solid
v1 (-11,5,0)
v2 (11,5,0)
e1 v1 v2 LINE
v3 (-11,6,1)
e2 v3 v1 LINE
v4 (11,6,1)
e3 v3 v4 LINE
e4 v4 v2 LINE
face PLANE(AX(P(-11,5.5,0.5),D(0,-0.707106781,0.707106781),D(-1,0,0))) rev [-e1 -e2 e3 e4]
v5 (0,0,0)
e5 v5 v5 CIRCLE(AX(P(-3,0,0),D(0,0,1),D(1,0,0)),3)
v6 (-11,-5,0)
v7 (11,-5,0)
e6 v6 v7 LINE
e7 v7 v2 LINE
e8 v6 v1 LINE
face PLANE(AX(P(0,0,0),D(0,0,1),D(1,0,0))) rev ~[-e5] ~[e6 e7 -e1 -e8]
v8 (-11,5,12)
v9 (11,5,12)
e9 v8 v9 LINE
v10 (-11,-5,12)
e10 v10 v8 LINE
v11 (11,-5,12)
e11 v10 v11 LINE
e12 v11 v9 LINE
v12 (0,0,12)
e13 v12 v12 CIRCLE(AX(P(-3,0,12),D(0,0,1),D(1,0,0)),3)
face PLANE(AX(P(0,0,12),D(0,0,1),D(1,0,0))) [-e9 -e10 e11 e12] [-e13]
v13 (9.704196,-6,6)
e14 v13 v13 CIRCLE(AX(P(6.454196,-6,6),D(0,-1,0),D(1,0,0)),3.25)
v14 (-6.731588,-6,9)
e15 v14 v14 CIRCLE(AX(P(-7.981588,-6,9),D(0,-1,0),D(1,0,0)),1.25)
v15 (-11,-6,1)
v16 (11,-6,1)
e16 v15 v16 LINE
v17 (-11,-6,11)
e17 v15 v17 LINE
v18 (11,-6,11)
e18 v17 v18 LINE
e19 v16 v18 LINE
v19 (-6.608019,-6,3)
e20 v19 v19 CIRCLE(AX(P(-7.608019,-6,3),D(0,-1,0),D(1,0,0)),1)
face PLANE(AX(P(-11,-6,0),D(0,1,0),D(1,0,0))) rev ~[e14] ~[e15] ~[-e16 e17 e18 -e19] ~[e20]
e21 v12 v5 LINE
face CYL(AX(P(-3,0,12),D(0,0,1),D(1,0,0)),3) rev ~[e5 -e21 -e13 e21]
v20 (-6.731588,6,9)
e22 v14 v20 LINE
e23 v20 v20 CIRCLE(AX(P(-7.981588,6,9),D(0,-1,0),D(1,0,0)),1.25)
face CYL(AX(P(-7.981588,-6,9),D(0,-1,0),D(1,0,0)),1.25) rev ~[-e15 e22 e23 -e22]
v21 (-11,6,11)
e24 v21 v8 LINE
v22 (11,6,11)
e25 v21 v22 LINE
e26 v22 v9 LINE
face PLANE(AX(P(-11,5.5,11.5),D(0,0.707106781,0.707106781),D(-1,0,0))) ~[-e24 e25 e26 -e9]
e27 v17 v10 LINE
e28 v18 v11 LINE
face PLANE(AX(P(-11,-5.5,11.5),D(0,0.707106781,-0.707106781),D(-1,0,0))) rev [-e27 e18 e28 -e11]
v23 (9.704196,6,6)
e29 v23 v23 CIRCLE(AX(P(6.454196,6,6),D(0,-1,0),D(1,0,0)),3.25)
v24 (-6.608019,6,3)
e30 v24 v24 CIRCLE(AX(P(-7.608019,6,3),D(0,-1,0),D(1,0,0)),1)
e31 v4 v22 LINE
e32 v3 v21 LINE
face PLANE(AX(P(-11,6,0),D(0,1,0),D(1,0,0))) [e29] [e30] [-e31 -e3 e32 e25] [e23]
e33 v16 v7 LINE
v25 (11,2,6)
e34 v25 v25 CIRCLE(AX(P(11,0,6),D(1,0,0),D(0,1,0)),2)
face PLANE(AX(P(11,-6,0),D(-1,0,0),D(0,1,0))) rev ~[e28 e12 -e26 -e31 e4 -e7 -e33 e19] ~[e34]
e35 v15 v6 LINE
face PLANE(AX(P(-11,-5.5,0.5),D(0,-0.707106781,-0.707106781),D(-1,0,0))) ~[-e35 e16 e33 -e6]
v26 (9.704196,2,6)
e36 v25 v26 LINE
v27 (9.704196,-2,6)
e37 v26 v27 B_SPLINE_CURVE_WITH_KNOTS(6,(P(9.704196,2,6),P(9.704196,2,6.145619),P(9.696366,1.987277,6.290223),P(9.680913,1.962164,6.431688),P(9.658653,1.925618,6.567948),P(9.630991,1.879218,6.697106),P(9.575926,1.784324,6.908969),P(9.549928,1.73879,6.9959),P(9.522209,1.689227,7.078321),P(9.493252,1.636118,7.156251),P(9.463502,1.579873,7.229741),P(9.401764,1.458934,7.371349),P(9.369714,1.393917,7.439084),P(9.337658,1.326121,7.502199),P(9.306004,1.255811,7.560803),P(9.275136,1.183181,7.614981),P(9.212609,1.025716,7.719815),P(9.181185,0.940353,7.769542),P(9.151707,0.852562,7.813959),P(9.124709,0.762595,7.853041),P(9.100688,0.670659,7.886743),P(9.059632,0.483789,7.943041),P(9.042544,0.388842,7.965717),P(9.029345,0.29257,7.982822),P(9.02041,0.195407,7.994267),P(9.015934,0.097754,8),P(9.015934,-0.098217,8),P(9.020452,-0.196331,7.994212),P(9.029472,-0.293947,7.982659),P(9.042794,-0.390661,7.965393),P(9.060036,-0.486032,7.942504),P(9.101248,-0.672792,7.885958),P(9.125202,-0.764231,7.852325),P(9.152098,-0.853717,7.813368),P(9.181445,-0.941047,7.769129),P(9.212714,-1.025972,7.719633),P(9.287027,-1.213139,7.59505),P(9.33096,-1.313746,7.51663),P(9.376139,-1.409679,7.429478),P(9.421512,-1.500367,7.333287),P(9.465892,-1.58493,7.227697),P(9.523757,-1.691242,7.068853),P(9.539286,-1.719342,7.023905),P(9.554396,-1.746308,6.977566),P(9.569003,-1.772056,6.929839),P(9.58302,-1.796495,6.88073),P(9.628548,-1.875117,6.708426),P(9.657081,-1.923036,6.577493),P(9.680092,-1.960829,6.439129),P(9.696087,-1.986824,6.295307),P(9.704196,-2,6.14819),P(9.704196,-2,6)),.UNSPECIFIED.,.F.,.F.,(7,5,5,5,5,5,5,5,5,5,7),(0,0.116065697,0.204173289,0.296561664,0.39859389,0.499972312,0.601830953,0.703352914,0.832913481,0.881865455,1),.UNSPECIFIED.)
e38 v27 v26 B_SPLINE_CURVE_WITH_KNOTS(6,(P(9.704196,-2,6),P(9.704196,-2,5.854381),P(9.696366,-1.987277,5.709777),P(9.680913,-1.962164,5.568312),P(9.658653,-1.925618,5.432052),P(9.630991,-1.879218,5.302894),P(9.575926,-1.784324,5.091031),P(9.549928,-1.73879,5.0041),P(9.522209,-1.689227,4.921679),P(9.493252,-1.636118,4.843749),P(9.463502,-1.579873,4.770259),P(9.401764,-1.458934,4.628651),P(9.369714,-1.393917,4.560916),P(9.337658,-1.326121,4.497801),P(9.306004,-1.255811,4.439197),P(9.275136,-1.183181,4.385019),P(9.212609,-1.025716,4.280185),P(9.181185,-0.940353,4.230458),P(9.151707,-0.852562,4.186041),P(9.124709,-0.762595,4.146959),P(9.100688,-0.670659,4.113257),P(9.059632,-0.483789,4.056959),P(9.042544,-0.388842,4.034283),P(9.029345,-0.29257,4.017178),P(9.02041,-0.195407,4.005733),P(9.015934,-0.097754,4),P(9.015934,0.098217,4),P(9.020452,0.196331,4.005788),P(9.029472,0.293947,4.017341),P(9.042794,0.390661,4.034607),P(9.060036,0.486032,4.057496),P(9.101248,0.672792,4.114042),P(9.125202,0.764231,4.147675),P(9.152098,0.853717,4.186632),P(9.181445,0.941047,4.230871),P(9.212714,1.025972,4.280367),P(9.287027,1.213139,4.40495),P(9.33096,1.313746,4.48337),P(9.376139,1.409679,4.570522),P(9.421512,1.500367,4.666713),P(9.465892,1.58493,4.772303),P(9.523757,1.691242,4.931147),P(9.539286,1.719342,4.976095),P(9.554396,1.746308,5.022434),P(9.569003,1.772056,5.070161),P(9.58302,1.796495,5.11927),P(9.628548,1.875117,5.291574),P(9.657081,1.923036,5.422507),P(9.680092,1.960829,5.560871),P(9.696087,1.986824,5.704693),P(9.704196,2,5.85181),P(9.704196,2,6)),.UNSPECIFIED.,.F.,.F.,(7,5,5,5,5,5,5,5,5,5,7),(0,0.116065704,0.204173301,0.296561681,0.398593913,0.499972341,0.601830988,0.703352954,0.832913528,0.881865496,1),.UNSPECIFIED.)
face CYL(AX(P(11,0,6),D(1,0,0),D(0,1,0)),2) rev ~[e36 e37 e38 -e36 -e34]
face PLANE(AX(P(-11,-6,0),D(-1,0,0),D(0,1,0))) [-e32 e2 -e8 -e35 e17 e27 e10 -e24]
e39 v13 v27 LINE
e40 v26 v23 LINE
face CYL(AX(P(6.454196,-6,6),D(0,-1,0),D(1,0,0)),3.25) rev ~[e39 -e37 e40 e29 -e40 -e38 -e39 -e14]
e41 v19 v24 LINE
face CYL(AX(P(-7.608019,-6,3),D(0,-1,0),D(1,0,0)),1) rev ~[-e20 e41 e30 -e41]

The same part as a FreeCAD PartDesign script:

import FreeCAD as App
import Part
import Sketcher
from FreeCAD import Vector
Q = App.Units.Quantity


def edges_at(feature, points):
    """Names of the edges that pass closest to the given points."""
    edges = feature.Shape.Edges
    near = lambda p: min(range(len(edges)), key=lambda i: edges[i].distToShape(Part.Vertex(*p))[0])
    return sorted({f"Edge{near(p) + 1}" for p in points})


def add_polygon(sketch, points):
    """Adds a closed chain of lines whose ends are joined by coincident constraints."""
    first, n = sketch.GeometryCount, len(points)
    for a, b in zip(points, points[1:] + points[:1]):
        sketch.addGeometry(Part.LineSegment(App.Vector(*a, 0), App.Vector(*b, 0)), False)
    for i in range(n):
        sketch.addConstraint(Sketcher.Constraint("Coincident", first + i, 2, first + (i + 1) % n, 1))

doc = App.newDocument("Part")
body = doc.addObject("PartDesign::Body", "Body")

# Sketch on XY plane
sketch1 = doc.addObject("Sketcher::SketchObject", "Sketch")
body.addObject(sketch1)
sketch1.AttachmentSupport = (doc.XY_Plane, [""])
sketch1.MapMode = "FlatFace"
add_polygon(sketch1, [(-11, 6), (-11, -6), (11, -6), (11, 6)])  # lines 0-3
sketch1.addConstraint([
    Sketcher.Constraint("Vertical", 0),
    Sketcher.Constraint("Horizontal", 1),
    Sketcher.Constraint("Vertical", 2),
    Sketcher.Constraint("Horizontal", 3),
    Sketcher.Constraint("Symmetric", 0, 2, 2, 2, -1, 1),
    Sketcher.Constraint("DistanceX", 1, 1, 1, 2, Q("22 mm")),
    Sketcher.Constraint("DistanceY", 0, 2, 0, 1, Q("12 mm")),
])
pad1 = doc.addObject("PartDesign::Pad", "Pad")
body.addObject(pad1)
pad1.Profile = sketch1
pad1.Length = 12
doc.recompute()

chamfer = doc.addObject("PartDesign::Chamfer", "Chamfer")
body.addObject(chamfer)
chamfer.Base = (pad1, edges_at(pad1, [
    (0, -6, 12),
    (0, -6, 0),
    (0, 6, 0),
    (0, 6, 12),
]))
chamfer.Size = 1

# Sketch on XZ plane
sketch2 = doc.addObject("Sketcher::SketchObject", "Sketch001")
body.addObject(sketch2)
sketch2.AttachmentSupport = (doc.XZ_Plane, [""])
sketch2.MapMode = "FlatFace"
sketch2.AttachmentOffset = App.Placement(Vector(0, 0, 6), App.Rotation())
sketch2.addGeometry([
    Part.Circle(Vector(6.5, 6, 0), Vector(0, 0, 1), 3.2),
    Part.Circle(Vector(-8, 9, 0), Vector(0, 0, 1), 1.2),
    Part.Circle(Vector(-7.6, 3, 0), Vector(0, 0, 1), 1),
], False)
sketch2.addConstraint([
    Sketcher.Constraint("Diameter", 2, Q("2 mm")),
    Sketcher.Constraint("Diameter", 0, Q("6.5 mm")),
    Sketcher.Constraint("Diameter", 1, Q("2.5 mm")),
    Sketcher.Constraint("DistanceY", -1, 1, 0, 3, Q("6 mm")),
    Sketcher.Constraint("DistanceY", -1, 1, 1, 3, Q("9 mm")),
    Sketcher.Constraint("DistanceY", -1, 1, 2, 3, Q("3 mm")),
    Sketcher.Constraint("DistanceX", 1, 3, -1, 1, Q("7.981588 mm")),
    Sketcher.Constraint("DistanceX", 2, 3, -1, 1, Q("7.608019 mm")),
    Sketcher.Constraint("DistanceX", -1, 1, 0, 3, Q("6.454196 mm")),
])
pocket1 = doc.addObject("PartDesign::Pocket", "Pocket")
body.addObject(pocket1)
pocket1.Profile = sketch2
pocket1.Type = "ThroughAll"

# Sketch on YZ plane
sketch3 = doc.addObject("Sketcher::SketchObject", "Sketch002")
body.addObject(sketch3)
sketch3.AttachmentSupport = (doc.YZ_Plane, [""])
sketch3.MapMode = "FlatFace"
sketch3.AttachmentOffset = App.Placement(Vector(0, 0, 11), App.Rotation())
sketch3.addGeometry(Part.Circle(Vector(0, 6, 0), Vector(0, 0, 1), 2), False)
sketch3.addConstraint([
    Sketcher.Constraint("PointOnObject", 0, 3, -2),
    Sketcher.Constraint("Diameter", 0, Q("4 mm")),
    Sketcher.Constraint("DistanceY", -1, 1, 0, 3, Q("6 mm")),
])
pocket2 = doc.addObject("PartDesign::Pocket", "Pocket001")
body.addObject(pocket2)
pocket2.Profile = sketch3
pocket2.Length = 4

# Sketch on XY plane
sketch4 = doc.addObject("Sketcher::SketchObject", "Sketch003")
body.addObject(sketch4)
sketch4.AttachmentSupport = (doc.XY_Plane, [""])
sketch4.MapMode = "FlatFace"
sketch4.AttachmentOffset = App.Placement(Vector(0, 0, 12), App.Rotation())
sketch4.addGeometry(Part.Circle(Vector(-3, 0, 0), Vector(0, 0, 1), 3), False)
sketch4.addConstraint([
    Sketcher.Constraint("PointOnObject", 0, 3, -1),
    Sketcher.Constraint("Diameter", 0, Q("6 mm")),
    Sketcher.Constraint("DistanceX", 0, 3, -1, 1, Q("3 mm")),
])
pocket3 = doc.addObject("PartDesign::Pocket", "Pocket002")
body.addObject(pocket3)
pocket3.Profile = sketch4
pocket3.Length = 25

doc.recompute()
